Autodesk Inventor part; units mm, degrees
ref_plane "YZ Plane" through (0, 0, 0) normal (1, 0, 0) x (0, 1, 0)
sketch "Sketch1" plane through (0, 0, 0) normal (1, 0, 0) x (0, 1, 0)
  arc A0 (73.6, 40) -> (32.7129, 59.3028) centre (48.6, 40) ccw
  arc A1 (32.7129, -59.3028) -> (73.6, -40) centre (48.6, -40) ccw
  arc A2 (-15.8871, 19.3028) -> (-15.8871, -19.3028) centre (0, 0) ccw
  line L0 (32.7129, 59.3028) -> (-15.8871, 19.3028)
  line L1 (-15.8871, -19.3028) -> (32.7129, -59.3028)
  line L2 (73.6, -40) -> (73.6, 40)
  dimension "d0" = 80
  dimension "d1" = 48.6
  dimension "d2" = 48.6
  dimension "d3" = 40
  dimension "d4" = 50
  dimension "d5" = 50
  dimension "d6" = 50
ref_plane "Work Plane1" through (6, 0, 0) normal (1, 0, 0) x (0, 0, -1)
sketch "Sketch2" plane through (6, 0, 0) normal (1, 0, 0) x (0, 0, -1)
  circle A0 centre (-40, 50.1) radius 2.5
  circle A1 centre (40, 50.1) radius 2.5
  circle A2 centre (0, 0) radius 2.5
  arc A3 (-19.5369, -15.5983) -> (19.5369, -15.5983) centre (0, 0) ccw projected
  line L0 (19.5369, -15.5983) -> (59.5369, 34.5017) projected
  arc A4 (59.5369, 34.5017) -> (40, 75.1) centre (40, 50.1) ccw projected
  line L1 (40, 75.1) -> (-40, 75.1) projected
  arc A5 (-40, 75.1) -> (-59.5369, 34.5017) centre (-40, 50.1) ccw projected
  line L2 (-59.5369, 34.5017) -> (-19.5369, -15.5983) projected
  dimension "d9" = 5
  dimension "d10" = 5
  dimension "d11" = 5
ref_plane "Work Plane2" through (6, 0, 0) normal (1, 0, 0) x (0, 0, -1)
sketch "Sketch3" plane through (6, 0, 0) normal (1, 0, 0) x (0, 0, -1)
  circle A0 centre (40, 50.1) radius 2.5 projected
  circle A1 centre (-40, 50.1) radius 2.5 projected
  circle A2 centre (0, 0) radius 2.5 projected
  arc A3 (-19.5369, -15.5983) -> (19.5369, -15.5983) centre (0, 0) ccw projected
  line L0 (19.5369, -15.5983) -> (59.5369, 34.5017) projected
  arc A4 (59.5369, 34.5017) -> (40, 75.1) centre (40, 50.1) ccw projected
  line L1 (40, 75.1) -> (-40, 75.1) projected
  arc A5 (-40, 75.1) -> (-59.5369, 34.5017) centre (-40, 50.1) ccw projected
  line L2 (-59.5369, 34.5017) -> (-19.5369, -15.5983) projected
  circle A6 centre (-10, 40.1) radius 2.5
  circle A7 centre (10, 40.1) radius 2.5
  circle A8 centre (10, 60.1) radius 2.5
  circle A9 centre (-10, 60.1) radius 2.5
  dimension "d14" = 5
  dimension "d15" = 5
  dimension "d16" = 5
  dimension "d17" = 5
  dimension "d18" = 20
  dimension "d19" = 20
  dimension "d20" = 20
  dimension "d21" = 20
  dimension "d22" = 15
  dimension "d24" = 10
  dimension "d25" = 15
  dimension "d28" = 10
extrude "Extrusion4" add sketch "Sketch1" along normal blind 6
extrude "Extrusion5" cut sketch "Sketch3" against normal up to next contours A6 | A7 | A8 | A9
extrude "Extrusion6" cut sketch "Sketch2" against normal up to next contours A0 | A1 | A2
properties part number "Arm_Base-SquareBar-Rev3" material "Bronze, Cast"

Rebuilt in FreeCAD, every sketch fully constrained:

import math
import FreeCAD as App
import Part
import Sketcher
from FreeCAD import Vector
Q = App.Units.Quantity

doc = App.newDocument("Part")
body = doc.addObject("PartDesign::Body", "Body")

# Sketch on YZ plane
sketch1 = body.newObject("Sketcher::SketchObject", "Sketch")
sketch1.AttachmentSupport = (doc.getObject("YZ_Plane"), [""])
sketch1.MapMode = "FlatFace"
sketch1.addGeometry([
    Part.LineSegment(Vector(74, -40, 0), Vector(74, 40, 0)),  # 0
    Part.ArcOfCircle(Part.Circle(Vector(49, 40, 0), Vector(0, 0, 1), 25), math.radians(0), math.radians(129)),  # 1
    Part.LineSegment(Vector(33, 59, 0), Vector(-16, 19, 0)),  # 2
    Part.ArcOfCircle(Part.Circle(Vector(0, 0, 0), Vector(0, 0, 1), 25), math.radians(129), math.radians(231)),  # 3
    Part.LineSegment(Vector(-16, -19, 0), Vector(33, -59, 0)),  # 4
    Part.ArcOfCircle(Part.Circle(Vector(49, -40, 0), Vector(0, 0, 1), 25), math.radians(-129), math.radians(0)),  # 5
], False)
sketch1.addConstraint([
    Sketcher.Constraint("Tangent", 0, 2, 1, 1),
    Sketcher.Constraint("Tangent", 1, 2, 2, 1),
    Sketcher.Constraint("Tangent", 2, 2, 3, 1),
    Sketcher.Constraint("Tangent", 3, 2, 4, 1),
    Sketcher.Constraint("Tangent", 4, 2, 5, 1),
    Sketcher.Constraint("Tangent", 5, 2, 0, 1),
    Sketcher.Constraint("Vertical", 0),
    Sketcher.Constraint("Coincident", 3, 3, -1, 1),
    Sketcher.Constraint("Equal", 1, 3),
    Sketcher.Constraint("Equal", 3, 5),
    Sketcher.Constraint("Vertical", 2, 2, 3, 2),
    Sketcher.Constraint("Radius", 1, Q("25 mm")),
    Sketcher.Constraint("DistanceY", 0, 1, 0, 2, Q("80 mm")),
    Sketcher.Constraint("DistanceX", -1, 1, 1, 3, Q("48.6 mm")),
])
pad1 = body.newObject("PartDesign::Pad", "Pad")
pad1.Profile = sketch1
pad1.Length = 6

# Sketch on YZ plane
sketch2 = body.newObject("Sketcher::SketchObject", "Sketch001")
sketch2.AttachmentSupport = (doc.getObject("YZ_Plane"), [""])
sketch2.MapMode = "FlatFace"
sketch2.AttachmentOffset = App.Placement(Vector(0, 0, 6), App.Rotation())
sketch2.addGeometry([
    Part.Circle(Vector(40.1, 10, 0), Vector(0, 0, 1), 2.5),
    Part.Circle(Vector(40.1, -10, 0), Vector(0, 0, 1), 2.5),
    Part.Circle(Vector(60.1, -10, 0), Vector(0, 0, 1), 2.5),
    Part.Circle(Vector(60.1, 10, 0), Vector(0, 0, 1), 2.5),
], False)
sketch2.addConstraint([
    Sketcher.Constraint("Equal", 0, 1),
    Sketcher.Constraint("Equal", 1, 2),
    Sketcher.Constraint("Equal", 2, 3),
    Sketcher.Constraint("Symmetric", 0, 3, 1, 3, -1),
    Sketcher.Constraint("Symmetric", 2, 3, 3, 3, -1),
    Sketcher.Constraint("Horizontal", 1, 3, 2, 3),
    Sketcher.Constraint("Diameter", 0, Q("5 mm")),
    Sketcher.Constraint("DistanceY", -1, 1, 0, 3, Q("10 mm")),
    Sketcher.Constraint("DistanceX", 1, 3, 2, 3, Q("20 mm")),
    Sketcher.Constraint("DistanceX", -1, 1, 0, 3, Q("40.1 mm")),
])
pocket1 = body.newObject("PartDesign::Pocket", "Pocket")
pocket1.Profile = sketch2
pocket1.Type = "UpToFirst"

# Sketch on YZ plane
sketch3 = body.newObject("Sketcher::SketchObject", "Sketch002")
sketch3.AttachmentSupport = (doc.getObject("YZ_Plane"), [""])
sketch3.MapMode = "FlatFace"
sketch3.AttachmentOffset = App.Placement(Vector(0, 0, 6), App.Rotation())
sketch3.addGeometry([
    Part.Circle(Vector(50.1, 40, 0), Vector(0, 0, 1), 2.5),
    Part.Circle(Vector(50.1, -40, 0), Vector(0, 0, 1), 2.5),
    Part.Circle(Vector(0, 0, 0), Vector(0, 0, 1), 2.5),
], False)
sketch3.addConstraint([
    Sketcher.Constraint("Coincident", 2, 3, -1, 1),
    Sketcher.Constraint("Equal", 0, 1),
    Sketcher.Constraint("Equal", 1, 2),
    Sketcher.Constraint("Symmetric", 0, 3, 1, 3, -1),
    Sketcher.Constraint("Diameter", 0, Q("5 mm")),
    Sketcher.Constraint("DistanceY", -1, 1, 0, 3, Q("40 mm")),
    Sketcher.Constraint("DistanceX", -1, 1, 0, 3, Q("50.1 mm")),
])
pocket2 = body.newObject("PartDesign::Pocket", "Pocket001")
pocket2.Profile = sketch3
pocket2.Type = "UpToFirst"

doc.recompute()
